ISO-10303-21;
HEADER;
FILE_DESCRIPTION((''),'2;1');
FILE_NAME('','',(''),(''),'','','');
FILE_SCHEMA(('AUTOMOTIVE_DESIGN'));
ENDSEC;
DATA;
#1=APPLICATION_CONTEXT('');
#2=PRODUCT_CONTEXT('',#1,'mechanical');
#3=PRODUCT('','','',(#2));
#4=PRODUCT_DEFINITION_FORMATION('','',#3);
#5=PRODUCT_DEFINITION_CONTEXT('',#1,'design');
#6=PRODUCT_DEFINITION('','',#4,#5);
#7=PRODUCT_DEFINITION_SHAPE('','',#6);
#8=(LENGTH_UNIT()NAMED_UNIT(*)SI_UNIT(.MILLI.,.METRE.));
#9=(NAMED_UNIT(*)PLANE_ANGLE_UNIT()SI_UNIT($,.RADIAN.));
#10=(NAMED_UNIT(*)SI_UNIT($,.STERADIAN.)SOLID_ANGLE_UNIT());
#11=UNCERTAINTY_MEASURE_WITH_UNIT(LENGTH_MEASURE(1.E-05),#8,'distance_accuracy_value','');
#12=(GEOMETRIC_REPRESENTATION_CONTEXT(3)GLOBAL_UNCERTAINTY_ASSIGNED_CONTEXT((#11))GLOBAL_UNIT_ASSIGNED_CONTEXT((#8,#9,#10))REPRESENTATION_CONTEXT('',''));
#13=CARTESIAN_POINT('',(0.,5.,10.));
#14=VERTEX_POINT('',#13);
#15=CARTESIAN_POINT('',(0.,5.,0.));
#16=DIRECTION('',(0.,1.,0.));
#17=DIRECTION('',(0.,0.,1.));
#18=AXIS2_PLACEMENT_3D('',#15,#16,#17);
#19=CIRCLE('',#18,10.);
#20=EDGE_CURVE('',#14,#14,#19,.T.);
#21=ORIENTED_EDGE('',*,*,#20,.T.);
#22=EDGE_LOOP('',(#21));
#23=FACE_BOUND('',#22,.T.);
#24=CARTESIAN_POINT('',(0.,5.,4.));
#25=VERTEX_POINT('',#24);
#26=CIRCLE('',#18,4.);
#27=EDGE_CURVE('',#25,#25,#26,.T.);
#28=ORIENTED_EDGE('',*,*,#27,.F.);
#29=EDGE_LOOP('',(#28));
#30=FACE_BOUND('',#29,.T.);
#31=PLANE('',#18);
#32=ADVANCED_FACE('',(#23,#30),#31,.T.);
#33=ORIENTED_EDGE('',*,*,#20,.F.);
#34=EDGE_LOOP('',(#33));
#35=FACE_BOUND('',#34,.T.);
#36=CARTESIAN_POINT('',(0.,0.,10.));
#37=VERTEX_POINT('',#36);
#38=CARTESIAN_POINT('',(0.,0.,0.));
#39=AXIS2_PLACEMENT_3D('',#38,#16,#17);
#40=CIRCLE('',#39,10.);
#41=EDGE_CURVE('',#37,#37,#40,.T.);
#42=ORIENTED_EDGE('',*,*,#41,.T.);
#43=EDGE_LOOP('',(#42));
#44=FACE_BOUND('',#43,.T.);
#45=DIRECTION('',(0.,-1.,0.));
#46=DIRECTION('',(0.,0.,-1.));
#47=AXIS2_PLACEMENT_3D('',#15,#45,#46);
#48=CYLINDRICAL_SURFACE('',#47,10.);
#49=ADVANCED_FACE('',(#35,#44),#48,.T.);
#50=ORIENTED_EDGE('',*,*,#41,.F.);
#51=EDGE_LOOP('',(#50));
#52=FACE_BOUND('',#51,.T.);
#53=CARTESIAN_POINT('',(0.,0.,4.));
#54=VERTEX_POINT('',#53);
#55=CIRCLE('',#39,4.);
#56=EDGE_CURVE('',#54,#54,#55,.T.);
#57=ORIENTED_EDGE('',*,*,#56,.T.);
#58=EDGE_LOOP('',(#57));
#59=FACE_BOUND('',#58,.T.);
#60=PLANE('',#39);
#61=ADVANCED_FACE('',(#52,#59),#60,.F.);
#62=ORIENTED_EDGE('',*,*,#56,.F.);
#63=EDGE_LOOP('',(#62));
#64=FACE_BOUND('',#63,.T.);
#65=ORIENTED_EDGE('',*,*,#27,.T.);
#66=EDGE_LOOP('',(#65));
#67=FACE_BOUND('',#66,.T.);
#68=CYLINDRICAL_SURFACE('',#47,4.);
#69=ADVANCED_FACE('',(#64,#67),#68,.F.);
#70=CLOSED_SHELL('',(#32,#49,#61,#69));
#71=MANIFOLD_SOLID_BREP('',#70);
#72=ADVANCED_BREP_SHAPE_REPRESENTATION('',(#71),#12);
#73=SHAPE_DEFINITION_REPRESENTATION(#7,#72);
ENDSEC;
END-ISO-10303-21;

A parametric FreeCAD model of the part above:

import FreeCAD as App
import Part
import Sketcher

V = App.Vector
Q = App.Units.Quantity

doc = App.newDocument("Part")
body = doc.addObject("PartDesign::Body", "Body")

sketch1 = body.newObject("Sketcher::SketchObject", "Sketch")
sketch1.AttachmentSupport = (doc.getObject("XZ_Plane"), [""])
sketch1.MapMode = "FlatFace"
sketch1.addGeometry([
    Part.Circle(V(0, 0, 0), V(0, 0, 1), 10),
    Part.Circle(V(0, 0, 0), V(0, 0, 1), 4),
], False)
sketch1.addConstraint([
    Sketcher.Constraint("Coincident", 0, 3, -1, 1),
    Sketcher.Constraint("Coincident", 1, 3, -1, 1),
    Sketcher.Constraint("Diameter", 0, Q("20 mm")),
    Sketcher.Constraint("Diameter", 1, Q("8 mm")),
])
pad1 = body.newObject("PartDesign::Pad", "Pad")
pad1.Profile = sketch1
pad1.Length = 5
pad1.Reversed = True

doc.recompute()
